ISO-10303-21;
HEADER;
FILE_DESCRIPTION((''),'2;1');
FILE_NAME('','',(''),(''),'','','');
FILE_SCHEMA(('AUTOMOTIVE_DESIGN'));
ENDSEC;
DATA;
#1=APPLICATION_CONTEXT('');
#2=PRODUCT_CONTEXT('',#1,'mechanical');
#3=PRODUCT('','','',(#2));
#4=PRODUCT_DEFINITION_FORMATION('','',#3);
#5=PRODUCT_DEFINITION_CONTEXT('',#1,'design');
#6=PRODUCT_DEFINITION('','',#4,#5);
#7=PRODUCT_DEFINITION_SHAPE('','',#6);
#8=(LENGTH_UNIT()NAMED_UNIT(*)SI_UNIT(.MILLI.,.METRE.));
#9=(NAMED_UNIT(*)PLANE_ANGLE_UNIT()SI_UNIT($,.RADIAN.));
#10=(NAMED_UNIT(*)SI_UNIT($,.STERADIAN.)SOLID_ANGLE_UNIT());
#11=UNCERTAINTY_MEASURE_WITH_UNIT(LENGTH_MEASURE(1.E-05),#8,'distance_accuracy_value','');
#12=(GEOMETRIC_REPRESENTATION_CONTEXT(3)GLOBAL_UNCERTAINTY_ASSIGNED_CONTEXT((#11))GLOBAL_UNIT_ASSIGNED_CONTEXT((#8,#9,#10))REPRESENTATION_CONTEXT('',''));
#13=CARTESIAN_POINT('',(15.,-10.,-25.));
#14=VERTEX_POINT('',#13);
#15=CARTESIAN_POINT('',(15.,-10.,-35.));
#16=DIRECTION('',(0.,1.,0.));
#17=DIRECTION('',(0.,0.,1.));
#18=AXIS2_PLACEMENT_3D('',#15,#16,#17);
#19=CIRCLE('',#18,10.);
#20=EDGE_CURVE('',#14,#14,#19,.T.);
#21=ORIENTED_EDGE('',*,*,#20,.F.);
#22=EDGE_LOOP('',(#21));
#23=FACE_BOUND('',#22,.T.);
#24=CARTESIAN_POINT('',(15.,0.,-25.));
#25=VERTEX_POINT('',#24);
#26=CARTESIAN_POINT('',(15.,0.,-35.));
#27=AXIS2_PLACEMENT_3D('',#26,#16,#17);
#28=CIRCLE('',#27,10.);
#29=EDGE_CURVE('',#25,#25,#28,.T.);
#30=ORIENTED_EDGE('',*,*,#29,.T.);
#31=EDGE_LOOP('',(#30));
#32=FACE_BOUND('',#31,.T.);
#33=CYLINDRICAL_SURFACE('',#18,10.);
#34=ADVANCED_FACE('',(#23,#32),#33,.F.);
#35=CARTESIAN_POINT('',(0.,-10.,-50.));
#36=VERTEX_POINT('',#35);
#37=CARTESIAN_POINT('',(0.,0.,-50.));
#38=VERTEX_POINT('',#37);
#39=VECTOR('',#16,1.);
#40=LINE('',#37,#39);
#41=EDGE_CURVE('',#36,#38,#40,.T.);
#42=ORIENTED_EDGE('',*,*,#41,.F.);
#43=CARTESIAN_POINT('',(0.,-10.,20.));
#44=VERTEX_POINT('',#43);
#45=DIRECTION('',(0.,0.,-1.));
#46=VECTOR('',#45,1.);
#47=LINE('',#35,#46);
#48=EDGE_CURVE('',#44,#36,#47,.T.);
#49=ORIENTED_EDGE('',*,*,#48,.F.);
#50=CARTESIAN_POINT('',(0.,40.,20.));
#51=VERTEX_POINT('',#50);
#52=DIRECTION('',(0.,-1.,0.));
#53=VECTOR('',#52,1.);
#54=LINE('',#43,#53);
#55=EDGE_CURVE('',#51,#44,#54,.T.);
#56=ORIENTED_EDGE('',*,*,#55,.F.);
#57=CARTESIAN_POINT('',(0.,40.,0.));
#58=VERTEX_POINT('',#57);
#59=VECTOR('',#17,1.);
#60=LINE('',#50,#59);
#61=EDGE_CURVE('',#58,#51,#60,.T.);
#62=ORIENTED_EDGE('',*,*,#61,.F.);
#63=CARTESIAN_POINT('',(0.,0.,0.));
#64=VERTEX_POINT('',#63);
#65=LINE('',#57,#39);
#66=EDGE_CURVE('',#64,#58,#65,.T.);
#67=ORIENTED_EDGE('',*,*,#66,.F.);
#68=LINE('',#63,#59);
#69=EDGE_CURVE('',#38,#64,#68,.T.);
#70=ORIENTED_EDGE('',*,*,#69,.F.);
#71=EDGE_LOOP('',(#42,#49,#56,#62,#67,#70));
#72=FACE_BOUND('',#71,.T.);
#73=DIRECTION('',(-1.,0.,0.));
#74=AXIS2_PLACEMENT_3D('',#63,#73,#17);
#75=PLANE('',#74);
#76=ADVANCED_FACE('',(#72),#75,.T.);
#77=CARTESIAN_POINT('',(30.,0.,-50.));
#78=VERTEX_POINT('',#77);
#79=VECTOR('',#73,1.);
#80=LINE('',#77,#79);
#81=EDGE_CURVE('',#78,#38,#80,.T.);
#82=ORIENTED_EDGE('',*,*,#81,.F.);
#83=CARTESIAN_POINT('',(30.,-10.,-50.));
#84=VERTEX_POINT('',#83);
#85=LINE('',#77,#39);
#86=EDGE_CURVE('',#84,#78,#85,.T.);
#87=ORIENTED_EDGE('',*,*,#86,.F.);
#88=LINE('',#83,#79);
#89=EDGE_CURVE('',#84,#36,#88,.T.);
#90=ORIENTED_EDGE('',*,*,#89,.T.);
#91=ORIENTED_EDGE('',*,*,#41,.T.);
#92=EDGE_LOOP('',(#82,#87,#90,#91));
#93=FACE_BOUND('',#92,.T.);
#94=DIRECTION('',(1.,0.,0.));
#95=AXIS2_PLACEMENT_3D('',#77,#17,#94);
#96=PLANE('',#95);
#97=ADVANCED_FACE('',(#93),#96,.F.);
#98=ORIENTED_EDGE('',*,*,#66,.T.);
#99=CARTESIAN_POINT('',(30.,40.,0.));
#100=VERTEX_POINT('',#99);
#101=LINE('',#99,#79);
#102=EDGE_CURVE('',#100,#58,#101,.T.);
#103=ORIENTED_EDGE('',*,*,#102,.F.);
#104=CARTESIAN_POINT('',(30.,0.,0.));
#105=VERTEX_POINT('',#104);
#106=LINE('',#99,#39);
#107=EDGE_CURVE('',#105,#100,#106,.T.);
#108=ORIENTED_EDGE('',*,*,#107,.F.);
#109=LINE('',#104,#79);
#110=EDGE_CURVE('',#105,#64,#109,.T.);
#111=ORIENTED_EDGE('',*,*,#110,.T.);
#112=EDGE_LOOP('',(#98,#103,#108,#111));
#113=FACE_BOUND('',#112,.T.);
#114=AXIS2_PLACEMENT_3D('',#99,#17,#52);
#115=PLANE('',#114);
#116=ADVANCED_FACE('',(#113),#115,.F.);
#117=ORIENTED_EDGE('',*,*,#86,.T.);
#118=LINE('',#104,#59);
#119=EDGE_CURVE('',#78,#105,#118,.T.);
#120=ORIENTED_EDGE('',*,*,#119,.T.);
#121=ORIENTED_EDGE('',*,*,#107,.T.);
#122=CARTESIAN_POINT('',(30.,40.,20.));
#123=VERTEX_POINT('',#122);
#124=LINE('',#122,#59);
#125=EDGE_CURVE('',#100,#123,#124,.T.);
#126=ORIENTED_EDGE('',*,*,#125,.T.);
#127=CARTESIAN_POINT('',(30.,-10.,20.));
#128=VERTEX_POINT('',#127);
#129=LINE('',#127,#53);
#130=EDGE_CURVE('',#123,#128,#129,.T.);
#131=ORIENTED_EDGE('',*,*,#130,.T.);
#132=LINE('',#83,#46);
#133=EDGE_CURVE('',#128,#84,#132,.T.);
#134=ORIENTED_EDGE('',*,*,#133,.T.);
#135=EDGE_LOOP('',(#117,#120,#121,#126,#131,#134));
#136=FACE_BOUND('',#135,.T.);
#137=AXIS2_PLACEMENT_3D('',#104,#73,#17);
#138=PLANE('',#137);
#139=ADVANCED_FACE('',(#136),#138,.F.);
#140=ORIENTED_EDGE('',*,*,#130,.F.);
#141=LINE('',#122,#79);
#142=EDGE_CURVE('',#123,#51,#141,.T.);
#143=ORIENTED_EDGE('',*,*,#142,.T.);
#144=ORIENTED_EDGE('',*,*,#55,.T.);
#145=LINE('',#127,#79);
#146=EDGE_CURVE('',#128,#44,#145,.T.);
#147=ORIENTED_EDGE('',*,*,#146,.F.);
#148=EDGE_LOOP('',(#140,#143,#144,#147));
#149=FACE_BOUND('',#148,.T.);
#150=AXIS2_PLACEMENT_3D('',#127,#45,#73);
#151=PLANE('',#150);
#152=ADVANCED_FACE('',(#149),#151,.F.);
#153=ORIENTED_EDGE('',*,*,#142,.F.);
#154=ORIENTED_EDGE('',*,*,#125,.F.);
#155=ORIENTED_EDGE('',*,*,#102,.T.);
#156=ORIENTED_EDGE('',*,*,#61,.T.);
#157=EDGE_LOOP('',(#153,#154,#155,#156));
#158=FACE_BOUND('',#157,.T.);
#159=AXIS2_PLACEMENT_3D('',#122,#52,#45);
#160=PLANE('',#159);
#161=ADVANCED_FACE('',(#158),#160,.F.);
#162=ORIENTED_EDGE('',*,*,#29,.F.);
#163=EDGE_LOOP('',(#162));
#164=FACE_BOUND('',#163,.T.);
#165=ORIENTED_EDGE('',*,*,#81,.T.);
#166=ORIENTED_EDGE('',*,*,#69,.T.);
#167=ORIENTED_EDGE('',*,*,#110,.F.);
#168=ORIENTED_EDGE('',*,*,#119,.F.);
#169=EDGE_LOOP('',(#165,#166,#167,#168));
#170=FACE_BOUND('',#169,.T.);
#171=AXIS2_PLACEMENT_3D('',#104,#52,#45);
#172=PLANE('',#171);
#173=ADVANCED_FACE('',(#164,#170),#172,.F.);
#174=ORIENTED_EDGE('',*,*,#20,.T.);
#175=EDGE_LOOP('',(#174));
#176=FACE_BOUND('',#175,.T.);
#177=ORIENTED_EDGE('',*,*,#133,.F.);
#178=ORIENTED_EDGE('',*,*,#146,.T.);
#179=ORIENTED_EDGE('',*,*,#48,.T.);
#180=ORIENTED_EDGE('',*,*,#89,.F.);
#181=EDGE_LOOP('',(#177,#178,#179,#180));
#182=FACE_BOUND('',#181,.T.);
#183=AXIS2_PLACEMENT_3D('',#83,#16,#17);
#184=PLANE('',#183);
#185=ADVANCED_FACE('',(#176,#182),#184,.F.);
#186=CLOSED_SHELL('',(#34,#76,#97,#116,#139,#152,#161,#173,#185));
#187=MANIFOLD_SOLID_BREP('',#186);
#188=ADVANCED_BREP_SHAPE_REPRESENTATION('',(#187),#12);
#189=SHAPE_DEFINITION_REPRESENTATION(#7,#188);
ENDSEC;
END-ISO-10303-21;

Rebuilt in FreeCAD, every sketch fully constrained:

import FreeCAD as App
import Part
import Sketcher
Q = App.Units.Quantity


def add_polygon(sketch, points):
    """Adds a closed chain of lines whose ends are joined by coincident constraints."""
    first, n = sketch.GeometryCount, len(points)
    for a, b in zip(points, points[1:] + points[:1]):
        sketch.addGeometry(Part.LineSegment(App.Vector(*a, 0), App.Vector(*b, 0)), False)
    for i in range(n):
        sketch.addConstraint(Sketcher.Constraint("Coincident", first + i, 2, first + (i + 1) % n, 1))

doc = App.newDocument("Part")
params = doc.addObject("Spreadsheet::Sheet", "Params")
for row, (alias, value) in enumerate([
    ("sketch1_width", "40 mm"),
    ("sketch1_width2", "50 mm"),
    ("sketch1_height", "20 mm"),
    ("pad1_length", "30 mm"),
    ("sketch2_diameter", "20 mm"),
    ("pocket1_length", "10 mm"),
], start=1):
    params.set(f"A{row}", alias)
    params.set(f"B{row}", "=" + value)
    params.setAlias(f"B{row}", alias)

body = doc.addObject("PartDesign::Body", "Body")

sketch1 = body.newObject("Sketcher::SketchObject", "Sketch")
sketch1.AttachmentSupport = (doc.getObject("YZ_Plane"), [""])
sketch1.MapMode = "FlatFace"
add_polygon(sketch1, [(0, 0), (40, 0), (40, 20), (-10, 20), (-10, -50), (0, -50)])
sketch1.addConstraint([
    Sketcher.Constraint("Horizontal", 0),
    Sketcher.Constraint("Vertical", 1),
    Sketcher.Constraint("Horizontal", 2),
    Sketcher.Constraint("Vertical", 3),
    Sketcher.Constraint("Horizontal", 4),
    Sketcher.Constraint("Vertical", 5),
    Sketcher.Constraint("Coincident", 5, 2, -1, 1),
    Sketcher.Constraint("Equal", 2, 5),
    Sketcher.Constraint("DistanceX", 0, 1, 0, 2, Q("40 mm")),
    Sketcher.Constraint("DistanceX", 2, 2, 2, 1, Q("50 mm")),
    Sketcher.Constraint("DistanceY", 1, 1, 1, 2, Q("20 mm")),
])
sketch1.setExpression("Constraints[14]", "Params.sketch1_width")
sketch1.setExpression("Constraints[15]", "Params.sketch1_width2")
sketch1.setExpression("Constraints[16]", "Params.sketch1_height")
pad1 = body.newObject("PartDesign::Pad", "Pad")
pad1.Profile = sketch1
pad1.setExpression("Length", "Params.pad1_length")

sketch2 = body.newObject("Sketcher::SketchObject", "Sketch001")
sketch2.AttachmentSupport = (doc.getObject("XZ_Plane"), [""])
sketch2.MapMode = "FlatFace"
sketch2.addGeometry(Part.Circle(App.Vector(15, -35, 0), App.Vector(0, 0, 1), 10), False)
sketch2.addConstraint([
    Sketcher.Constraint("Diameter", 0, Q("20 mm")),
    Sketcher.Constraint("DistanceX", -1, 1, 0, 3, Q("15 mm")),
    Sketcher.Constraint("DistanceY", 0, 3, -1, 1, Q("35 mm")),
])
sketch2.setExpression("Constraints[0]", "Params.sketch2_diameter")
pocket1 = body.newObject("PartDesign::Pocket", "Pocket")
pocket1.Profile = sketch2
pocket1.setExpression("Length", "Params.pocket1_length")
pocket1.Reversed = True

doc.recompute()
